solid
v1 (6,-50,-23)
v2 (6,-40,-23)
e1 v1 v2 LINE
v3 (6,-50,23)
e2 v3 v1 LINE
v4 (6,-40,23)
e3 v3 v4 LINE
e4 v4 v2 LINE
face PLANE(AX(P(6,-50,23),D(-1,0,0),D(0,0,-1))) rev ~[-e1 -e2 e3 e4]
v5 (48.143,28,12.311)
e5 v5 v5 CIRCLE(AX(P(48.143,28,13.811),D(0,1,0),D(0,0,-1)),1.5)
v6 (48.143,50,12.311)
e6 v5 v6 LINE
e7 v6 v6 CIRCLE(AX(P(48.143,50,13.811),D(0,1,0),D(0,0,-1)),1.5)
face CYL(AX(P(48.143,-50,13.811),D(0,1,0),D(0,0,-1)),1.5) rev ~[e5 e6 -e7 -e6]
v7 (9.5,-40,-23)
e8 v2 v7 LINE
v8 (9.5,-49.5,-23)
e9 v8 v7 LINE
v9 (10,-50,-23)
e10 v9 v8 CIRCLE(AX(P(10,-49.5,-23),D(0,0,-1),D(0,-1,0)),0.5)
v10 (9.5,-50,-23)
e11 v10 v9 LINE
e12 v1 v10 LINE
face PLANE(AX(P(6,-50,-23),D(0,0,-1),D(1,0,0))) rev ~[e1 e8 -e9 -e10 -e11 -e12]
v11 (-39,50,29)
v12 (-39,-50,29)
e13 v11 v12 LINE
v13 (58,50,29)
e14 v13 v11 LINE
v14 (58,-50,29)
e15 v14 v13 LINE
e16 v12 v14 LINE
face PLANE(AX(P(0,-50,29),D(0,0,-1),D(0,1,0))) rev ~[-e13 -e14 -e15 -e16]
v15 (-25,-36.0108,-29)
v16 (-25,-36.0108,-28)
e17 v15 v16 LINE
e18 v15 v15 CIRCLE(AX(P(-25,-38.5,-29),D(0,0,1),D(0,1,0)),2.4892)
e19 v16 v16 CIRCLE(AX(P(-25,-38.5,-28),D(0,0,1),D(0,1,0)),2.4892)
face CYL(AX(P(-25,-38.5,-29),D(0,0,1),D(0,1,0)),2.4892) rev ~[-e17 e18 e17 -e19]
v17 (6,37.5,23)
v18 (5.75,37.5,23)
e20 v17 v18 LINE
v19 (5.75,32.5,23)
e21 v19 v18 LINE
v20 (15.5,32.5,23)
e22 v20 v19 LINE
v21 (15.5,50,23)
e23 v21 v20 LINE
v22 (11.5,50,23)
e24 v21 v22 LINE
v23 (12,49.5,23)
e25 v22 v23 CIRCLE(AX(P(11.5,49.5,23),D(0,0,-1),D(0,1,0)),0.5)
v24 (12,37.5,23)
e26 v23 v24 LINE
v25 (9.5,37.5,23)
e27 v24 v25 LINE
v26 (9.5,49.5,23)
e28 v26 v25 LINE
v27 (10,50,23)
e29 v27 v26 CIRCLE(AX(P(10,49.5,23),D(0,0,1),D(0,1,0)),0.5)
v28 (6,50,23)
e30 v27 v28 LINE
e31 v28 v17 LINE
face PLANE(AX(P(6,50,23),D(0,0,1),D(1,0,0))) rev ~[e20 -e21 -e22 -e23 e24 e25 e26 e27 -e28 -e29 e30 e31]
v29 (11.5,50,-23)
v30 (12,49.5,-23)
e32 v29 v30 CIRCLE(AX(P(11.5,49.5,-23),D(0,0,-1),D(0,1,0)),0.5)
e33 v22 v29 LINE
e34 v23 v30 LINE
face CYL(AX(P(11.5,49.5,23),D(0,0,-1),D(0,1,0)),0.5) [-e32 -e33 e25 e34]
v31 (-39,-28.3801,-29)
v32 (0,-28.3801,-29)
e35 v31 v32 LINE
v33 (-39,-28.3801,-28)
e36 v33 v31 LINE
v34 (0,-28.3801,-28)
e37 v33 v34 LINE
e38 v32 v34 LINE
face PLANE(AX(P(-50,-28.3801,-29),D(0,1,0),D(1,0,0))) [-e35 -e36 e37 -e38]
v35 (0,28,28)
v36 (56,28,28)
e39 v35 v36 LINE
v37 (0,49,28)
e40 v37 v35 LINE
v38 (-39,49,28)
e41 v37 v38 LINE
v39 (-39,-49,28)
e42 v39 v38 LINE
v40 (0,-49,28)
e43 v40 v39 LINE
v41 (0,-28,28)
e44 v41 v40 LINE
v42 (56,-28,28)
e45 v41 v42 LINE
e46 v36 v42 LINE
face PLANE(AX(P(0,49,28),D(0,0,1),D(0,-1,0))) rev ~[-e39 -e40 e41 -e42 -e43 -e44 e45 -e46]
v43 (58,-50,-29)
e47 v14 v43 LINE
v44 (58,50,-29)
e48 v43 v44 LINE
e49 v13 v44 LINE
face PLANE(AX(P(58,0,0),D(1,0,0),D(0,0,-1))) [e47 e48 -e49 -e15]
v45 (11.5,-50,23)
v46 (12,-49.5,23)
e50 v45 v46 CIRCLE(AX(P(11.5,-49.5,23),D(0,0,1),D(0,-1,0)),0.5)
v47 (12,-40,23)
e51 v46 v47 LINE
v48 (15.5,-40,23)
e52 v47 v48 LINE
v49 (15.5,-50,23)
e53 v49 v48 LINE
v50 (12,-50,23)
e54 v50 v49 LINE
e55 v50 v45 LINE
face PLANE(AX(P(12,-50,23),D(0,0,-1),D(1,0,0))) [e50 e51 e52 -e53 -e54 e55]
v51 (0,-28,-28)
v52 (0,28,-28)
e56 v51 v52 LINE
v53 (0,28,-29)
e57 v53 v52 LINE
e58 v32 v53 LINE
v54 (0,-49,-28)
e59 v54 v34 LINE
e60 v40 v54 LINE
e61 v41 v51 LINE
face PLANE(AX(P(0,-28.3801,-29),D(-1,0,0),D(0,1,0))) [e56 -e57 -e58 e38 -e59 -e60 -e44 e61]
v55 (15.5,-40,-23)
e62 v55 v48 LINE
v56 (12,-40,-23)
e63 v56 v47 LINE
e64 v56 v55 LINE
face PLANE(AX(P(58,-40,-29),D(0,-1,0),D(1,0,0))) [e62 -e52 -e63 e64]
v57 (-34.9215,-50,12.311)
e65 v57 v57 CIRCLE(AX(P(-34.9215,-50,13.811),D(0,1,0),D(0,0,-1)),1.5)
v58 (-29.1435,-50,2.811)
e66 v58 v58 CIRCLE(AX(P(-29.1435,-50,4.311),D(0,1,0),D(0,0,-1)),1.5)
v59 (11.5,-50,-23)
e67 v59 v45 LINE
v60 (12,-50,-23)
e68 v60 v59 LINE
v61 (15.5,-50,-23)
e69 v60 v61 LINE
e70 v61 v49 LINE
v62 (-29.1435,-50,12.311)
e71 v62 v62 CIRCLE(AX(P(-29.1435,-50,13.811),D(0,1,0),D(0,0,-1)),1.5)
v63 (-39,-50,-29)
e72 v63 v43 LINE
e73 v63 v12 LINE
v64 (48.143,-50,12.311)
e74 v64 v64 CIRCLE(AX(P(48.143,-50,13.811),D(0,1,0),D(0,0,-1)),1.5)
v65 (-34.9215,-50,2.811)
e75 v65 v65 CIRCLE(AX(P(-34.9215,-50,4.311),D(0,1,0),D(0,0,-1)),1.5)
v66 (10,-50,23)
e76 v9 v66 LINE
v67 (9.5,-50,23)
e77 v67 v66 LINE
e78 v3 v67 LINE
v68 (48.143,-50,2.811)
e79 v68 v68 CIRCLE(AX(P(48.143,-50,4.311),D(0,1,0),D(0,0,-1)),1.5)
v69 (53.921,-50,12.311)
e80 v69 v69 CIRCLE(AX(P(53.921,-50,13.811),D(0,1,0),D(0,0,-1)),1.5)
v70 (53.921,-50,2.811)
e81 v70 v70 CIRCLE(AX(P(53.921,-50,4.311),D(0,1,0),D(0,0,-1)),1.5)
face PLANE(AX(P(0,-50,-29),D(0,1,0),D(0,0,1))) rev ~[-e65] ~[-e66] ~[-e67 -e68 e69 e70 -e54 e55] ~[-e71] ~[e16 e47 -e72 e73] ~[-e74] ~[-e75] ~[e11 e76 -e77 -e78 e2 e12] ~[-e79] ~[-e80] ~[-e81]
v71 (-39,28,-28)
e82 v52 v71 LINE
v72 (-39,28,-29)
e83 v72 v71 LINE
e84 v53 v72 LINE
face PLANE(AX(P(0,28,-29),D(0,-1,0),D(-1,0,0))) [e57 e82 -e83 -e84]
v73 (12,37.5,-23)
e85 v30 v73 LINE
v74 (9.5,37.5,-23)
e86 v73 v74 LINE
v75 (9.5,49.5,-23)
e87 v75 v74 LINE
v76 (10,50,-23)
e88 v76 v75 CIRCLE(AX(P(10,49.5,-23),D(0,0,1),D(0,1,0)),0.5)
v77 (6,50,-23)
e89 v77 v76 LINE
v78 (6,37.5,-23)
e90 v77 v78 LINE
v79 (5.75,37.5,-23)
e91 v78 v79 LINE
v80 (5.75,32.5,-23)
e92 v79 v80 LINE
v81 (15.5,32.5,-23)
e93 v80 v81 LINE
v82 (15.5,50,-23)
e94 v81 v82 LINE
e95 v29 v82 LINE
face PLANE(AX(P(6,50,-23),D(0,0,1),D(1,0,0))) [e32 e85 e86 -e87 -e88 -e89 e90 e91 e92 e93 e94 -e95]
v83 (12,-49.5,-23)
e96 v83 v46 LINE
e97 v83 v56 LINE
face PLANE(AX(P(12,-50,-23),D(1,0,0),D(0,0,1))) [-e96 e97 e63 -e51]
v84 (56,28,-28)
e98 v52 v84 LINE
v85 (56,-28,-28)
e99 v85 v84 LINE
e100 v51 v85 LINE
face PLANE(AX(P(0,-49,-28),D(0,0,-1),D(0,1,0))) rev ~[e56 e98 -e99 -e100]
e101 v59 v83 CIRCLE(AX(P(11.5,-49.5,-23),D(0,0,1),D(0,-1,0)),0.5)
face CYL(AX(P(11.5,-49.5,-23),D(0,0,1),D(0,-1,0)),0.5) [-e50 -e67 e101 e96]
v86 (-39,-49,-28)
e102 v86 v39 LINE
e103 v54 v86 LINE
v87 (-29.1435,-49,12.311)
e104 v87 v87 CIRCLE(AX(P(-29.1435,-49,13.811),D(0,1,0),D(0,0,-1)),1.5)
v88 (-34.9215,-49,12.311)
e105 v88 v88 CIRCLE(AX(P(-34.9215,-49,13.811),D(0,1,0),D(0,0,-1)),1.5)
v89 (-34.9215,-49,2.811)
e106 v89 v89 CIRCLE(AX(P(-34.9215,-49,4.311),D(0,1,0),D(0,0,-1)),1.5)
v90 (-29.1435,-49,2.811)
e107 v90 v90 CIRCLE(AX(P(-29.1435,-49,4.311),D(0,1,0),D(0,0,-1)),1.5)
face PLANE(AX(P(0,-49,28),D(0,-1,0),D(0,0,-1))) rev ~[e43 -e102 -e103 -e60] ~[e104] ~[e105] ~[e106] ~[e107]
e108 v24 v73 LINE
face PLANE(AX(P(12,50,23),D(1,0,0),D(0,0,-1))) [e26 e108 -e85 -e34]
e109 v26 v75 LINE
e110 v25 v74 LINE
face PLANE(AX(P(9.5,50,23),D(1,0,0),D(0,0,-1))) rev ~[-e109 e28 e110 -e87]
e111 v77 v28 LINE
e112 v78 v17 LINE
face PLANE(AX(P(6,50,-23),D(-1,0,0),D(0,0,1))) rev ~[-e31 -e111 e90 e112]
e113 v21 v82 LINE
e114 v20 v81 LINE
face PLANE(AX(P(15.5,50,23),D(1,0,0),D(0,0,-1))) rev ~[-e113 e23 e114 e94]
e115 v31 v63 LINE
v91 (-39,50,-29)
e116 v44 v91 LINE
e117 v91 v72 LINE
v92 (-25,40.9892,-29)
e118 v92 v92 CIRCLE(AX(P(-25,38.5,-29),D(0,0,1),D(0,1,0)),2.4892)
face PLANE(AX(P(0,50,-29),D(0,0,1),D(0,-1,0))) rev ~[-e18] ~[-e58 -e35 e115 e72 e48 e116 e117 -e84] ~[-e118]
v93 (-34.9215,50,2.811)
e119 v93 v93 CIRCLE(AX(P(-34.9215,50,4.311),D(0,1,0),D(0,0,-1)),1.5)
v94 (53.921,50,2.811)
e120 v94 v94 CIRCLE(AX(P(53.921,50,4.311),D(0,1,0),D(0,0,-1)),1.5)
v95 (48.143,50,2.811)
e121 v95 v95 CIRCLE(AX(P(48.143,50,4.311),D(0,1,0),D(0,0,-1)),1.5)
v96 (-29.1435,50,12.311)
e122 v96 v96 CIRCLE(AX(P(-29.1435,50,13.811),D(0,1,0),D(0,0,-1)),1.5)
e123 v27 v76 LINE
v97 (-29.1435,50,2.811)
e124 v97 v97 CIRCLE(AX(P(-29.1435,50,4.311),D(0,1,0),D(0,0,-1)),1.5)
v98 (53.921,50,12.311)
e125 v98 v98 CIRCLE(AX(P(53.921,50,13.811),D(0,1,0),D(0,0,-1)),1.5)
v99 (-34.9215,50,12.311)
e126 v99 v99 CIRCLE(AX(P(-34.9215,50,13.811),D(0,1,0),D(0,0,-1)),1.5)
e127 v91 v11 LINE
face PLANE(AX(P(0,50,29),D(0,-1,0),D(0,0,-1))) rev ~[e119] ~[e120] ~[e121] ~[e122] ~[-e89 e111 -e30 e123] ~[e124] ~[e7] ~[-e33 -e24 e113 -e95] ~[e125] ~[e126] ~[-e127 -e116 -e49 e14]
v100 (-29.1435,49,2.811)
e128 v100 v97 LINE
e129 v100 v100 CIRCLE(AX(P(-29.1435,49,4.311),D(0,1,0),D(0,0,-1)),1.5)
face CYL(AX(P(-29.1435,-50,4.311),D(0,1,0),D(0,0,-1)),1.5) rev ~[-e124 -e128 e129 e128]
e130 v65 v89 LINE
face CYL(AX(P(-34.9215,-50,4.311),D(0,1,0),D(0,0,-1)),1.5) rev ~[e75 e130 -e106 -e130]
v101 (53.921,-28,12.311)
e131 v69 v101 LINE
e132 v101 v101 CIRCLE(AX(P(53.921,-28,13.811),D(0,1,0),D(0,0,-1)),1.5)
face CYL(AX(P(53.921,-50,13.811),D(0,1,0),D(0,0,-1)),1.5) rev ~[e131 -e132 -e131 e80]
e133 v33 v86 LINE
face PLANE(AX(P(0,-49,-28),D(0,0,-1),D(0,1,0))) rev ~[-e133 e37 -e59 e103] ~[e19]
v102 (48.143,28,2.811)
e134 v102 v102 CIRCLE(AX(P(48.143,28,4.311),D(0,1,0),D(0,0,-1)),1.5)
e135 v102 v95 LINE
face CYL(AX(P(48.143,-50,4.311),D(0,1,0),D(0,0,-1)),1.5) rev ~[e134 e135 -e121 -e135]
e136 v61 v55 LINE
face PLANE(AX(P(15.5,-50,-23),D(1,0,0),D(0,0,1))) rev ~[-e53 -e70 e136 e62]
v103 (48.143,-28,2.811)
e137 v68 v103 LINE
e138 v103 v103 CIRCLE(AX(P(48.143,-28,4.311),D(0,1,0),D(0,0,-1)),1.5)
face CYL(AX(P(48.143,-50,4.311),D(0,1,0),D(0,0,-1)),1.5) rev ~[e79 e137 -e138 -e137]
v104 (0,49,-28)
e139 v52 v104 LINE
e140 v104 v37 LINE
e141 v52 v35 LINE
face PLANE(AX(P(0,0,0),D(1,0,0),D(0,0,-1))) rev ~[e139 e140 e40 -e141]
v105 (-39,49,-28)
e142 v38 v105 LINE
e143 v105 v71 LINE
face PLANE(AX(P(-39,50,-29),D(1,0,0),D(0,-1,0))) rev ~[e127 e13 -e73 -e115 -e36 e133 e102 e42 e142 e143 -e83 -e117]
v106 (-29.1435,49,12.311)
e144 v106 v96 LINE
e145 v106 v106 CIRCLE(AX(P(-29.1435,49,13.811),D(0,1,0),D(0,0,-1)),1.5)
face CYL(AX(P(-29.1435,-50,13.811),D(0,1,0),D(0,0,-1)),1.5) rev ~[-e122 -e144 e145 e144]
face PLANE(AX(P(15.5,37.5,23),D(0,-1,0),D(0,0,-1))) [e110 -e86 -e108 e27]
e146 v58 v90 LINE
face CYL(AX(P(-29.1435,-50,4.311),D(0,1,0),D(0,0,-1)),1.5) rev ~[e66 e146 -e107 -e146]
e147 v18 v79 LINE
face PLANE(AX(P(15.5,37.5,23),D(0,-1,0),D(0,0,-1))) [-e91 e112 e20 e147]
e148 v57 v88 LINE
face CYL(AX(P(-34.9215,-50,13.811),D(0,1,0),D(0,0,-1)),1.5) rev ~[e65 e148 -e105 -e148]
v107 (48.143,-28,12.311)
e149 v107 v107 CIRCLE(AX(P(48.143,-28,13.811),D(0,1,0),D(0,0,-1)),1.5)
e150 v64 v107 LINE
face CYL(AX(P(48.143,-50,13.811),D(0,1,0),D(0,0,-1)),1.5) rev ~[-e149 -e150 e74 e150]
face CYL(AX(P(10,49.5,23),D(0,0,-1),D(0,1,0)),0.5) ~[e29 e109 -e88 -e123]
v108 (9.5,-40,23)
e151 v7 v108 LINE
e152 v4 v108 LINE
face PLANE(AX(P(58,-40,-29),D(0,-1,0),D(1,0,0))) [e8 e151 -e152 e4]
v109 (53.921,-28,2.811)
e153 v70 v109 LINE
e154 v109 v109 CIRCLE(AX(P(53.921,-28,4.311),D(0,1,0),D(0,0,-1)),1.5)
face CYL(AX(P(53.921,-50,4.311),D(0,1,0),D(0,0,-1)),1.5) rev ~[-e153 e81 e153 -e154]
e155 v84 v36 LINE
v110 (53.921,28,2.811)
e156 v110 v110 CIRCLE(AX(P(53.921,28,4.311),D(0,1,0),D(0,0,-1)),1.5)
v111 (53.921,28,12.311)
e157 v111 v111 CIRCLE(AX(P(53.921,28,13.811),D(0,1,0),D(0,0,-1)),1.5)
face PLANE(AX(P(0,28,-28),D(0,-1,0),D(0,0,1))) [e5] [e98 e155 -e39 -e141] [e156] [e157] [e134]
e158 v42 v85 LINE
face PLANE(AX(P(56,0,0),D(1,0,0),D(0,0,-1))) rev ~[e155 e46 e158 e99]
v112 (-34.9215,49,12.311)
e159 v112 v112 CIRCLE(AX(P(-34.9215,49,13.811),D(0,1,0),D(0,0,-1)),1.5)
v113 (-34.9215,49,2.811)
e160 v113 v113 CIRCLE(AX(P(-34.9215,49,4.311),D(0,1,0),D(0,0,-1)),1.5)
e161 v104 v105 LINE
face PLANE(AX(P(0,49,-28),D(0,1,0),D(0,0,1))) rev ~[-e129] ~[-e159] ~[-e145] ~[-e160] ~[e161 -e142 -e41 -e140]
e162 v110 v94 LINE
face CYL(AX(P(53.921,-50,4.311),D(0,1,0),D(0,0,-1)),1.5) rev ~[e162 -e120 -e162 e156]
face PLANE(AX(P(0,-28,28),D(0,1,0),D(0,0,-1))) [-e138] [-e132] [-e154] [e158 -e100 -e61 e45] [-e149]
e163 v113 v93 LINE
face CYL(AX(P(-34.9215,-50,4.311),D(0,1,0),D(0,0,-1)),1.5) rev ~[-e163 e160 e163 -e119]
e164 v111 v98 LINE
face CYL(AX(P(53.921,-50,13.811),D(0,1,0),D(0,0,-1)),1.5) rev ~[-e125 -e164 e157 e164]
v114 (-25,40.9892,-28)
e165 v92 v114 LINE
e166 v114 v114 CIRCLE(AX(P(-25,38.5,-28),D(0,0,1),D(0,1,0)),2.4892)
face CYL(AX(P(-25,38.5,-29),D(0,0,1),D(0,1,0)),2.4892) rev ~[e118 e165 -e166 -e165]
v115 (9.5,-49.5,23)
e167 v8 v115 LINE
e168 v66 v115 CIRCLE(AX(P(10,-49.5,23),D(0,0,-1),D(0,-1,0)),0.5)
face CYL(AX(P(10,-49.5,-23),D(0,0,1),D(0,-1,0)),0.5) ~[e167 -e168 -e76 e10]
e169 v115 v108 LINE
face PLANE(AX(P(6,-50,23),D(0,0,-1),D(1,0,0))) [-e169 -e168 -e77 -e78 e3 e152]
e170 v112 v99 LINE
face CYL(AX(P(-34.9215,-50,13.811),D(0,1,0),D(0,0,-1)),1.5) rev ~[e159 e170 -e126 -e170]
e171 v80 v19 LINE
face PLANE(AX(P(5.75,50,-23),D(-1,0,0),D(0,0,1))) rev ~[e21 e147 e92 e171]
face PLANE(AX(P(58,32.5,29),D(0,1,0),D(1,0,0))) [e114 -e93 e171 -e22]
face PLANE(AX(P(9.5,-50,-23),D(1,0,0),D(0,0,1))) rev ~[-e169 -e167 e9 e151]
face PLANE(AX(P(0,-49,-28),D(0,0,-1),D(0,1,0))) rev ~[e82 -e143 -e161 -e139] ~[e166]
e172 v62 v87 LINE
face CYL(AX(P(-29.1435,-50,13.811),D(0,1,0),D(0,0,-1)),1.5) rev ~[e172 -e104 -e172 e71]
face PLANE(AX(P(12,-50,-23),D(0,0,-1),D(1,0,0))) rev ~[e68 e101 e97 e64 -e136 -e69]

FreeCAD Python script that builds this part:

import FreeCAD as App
import Part
import Sketcher

V = App.Vector


def edges_at(feature, points):
    """Names of the edges that pass closest to the given points."""
    edges = feature.Shape.Edges
    near = lambda p: min(range(len(edges)), key=lambda i: edges[i].distToShape(Part.Vertex(*p))[0])
    return sorted({f"Edge{near(p) + 1}" for p in points})

doc = App.newDocument("Part")
body = doc.addObject("PartDesign::Body", "Body")

sketch1 = doc.addObject("Sketcher::SketchObject", "Sketch")
body.addObject(sketch1)
sketch1.AttachmentSupport = (doc.YZ_Plane, [""])
sketch1.MapMode = "FlatFace"
sketch1.addGeometry([
    Part.LineSegment(V(29, -29, 0), V(29, 29, 0)),
    Part.LineSegment(V(29, 29, 0), V(-29, 29, 0)),
    Part.LineSegment(V(-29, 29, 0), V(-29, -29, 0)),
    Part.LineSegment(V(-29, -29, 0), V(29, -29, 0)),
    Part.LineSegment(V(-28, 28, 0), V(28, 28, 0)),
    Part.LineSegment(V(28, 28, 0), V(28, -28, 0)),
    Part.LineSegment(V(28, -28, 0), V(-28, -28, 0)),
    Part.LineSegment(V(-28, -28, 0), V(-28, 28, 0)),
], False)
sketch1.addConstraint([
    Sketcher.Constraint("Coincident", 0, 2, 1, 1),
    Sketcher.Constraint("Coincident", 1, 2, 2, 1),
    Sketcher.Constraint("Coincident", 2, 2, 3, 1),
    Sketcher.Constraint("Coincident", 3, 2, 0, 1),
    Sketcher.Constraint("Coincident", 4, 2, 5, 1),
    Sketcher.Constraint("Coincident", 5, 2, 6, 1),
    Sketcher.Constraint("Coincident", 6, 2, 7, 1),
    Sketcher.Constraint("Coincident", 7, 2, 4, 1),
    Sketcher.Constraint("Vertical", 0),
    Sketcher.Constraint("Horizontal", 1),
    Sketcher.Constraint("Vertical", 2),
    Sketcher.Constraint("Horizontal", 3),
    Sketcher.Constraint("Horizontal", 4),
    Sketcher.Constraint("Vertical", 5),
    Sketcher.Constraint("Horizontal", 6),
    Sketcher.Constraint("Vertical", 7),
    Sketcher.Constraint("Symmetric", 0, 2, 2, 2, -1, 1),
    Sketcher.Constraint("Symmetric", 4, 2, 6, 2, -1, 1),
    Sketcher.Constraint("Equal", 3, 0),
    Sketcher.Constraint("Equal", 6, 5),
    Sketcher.Constraint("DistanceX", 1, 2, 1, 1, 58.0),
    Sketcher.Constraint("DistanceX", 4, 1, 4, 2, 56.0),
])
pad1 = doc.addObject("PartDesign::Pad", "Pad")
body.addObject(pad1)
pad1.Profile = sketch1
pad1.Length = 56

sketch2 = doc.addObject("Sketcher::SketchObject", "Sketch001")
body.addObject(sketch2)
sketch2.AttachmentSupport = (doc.YZ_Plane, [""])
sketch2.MapMode = "FlatFace"
sketch2.AttachmentOffset = App.Placement(V(0, 0, 56), App.Rotation())
sketch2.addGeometry([
    Part.LineSegment(V(-29, -29, 0), V(29, -29, 0)),
    Part.LineSegment(V(29, -29, 0), V(29, 29, 0)),
    Part.LineSegment(V(29, 29, 0), V(-29, 29, 0)),
    Part.LineSegment(V(-29, 29, 0), V(-29, -29, 0)),
], False)
sketch2.addConstraint([
    Sketcher.Constraint("Coincident", 0, 2, 1, 1),
    Sketcher.Constraint("Coincident", 1, 2, 2, 1),
    Sketcher.Constraint("Coincident", 2, 2, 3, 1),
    Sketcher.Constraint("Coincident", 3, 2, 0, 1),
    Sketcher.Constraint("Horizontal", 0),
    Sketcher.Constraint("Vertical", 1),
    Sketcher.Constraint("Horizontal", 2),
    Sketcher.Constraint("Vertical", 3),
    Sketcher.Constraint("Symmetric", 0, 2, 2, 2, -1, 1),
    Sketcher.Constraint("Equal", 2, 1),
    Sketcher.Constraint("DistanceX", 0, 1, 0, 2, 58.0),
])
pad2 = doc.addObject("PartDesign::Pad", "Pad001")
body.addObject(pad2)
pad2.Profile = sketch2
pad2.Length = 2

sketch3 = doc.addObject("Sketcher::SketchObject", "Sketch002")
body.addObject(sketch3)
sketch3.AttachmentSupport = (doc.YZ_Plane, [""])
sketch3.MapMode = "FlatFace"
sketch3.addGeometry([
    Part.LineSegment(V(-50, 29, 0), V(50, 29, 0)),
    Part.LineSegment(V(50, 29, 0), V(50, -29, 0)),
    Part.LineSegment(V(50, -29, 0), V(-50, -29, 0)),
    Part.LineSegment(V(-50, -29, 0), V(-50, 29, 0)),
    Part.LineSegment(V(-49, -28, 0), V(49, -28, 0)),
    Part.LineSegment(V(49, -28, 0), V(49, 28, 0)),
    Part.LineSegment(V(49, 28, 0), V(-49, 28, 0)),
    Part.LineSegment(V(-49, 28, 0), V(-49, -28, 0)),
], False)
sketch3.addConstraint([
    Sketcher.Constraint("Coincident", 0, 2, 1, 1),
    Sketcher.Constraint("Coincident", 1, 2, 2, 1),
    Sketcher.Constraint("Coincident", 2, 2, 3, 1),
    Sketcher.Constraint("Coincident", 3, 2, 0, 1),
    Sketcher.Constraint("Coincident", 4, 2, 5, 1),
    Sketcher.Constraint("Coincident", 5, 2, 6, 1),
    Sketcher.Constraint("Coincident", 6, 2, 7, 1),
    Sketcher.Constraint("Coincident", 7, 2, 4, 1),
    Sketcher.Constraint("Horizontal", 0),
    Sketcher.Constraint("Vertical", 1),
    Sketcher.Constraint("Horizontal", 2),
    Sketcher.Constraint("Vertical", 3),
    Sketcher.Constraint("Horizontal", 4),
    Sketcher.Constraint("Vertical", 5),
    Sketcher.Constraint("Horizontal", 6),
    Sketcher.Constraint("Vertical", 7),
    Sketcher.Constraint("Symmetric", 0, 2, 2, 2, -1, 1),
    Sketcher.Constraint("Symmetric", 4, 2, 6, 2, -1, 1),
    Sketcher.Constraint("DistanceX", 0, 1, 0, 2, 100.0),
    Sketcher.Constraint("DistanceX", 4, 1, 4, 2, 98.0),
    Sketcher.Constraint("DistanceY", 1, 2, 1, 1, 58.0),
    Sketcher.Constraint("DistanceY", 5, 1, 5, 2, 56.0),
])
pad3 = doc.addObject("PartDesign::Pad", "Pad002")
body.addObject(pad3)
pad3.Profile = sketch3
pad3.Length = 50
pad3.Reversed = True

sketch4 = doc.addObject("Sketcher::SketchObject", "Sketch003")
body.addObject(sketch4)
sketch4.AttachmentSupport = (doc.YZ_Plane, [""])
sketch4.MapMode = "FlatFace"
sketch4.addGeometry([
    Part.LineSegment(V(-50, -29, 0), V(-29, -29, 0)),
    Part.LineSegment(V(-29, -29, 0), V(-29, 29, 0)),
    Part.LineSegment(V(-29, 29, 0), V(-50, 29, 0)),
    Part.LineSegment(V(-50, 29, 0), V(-50, -29, 0)),
    Part.LineSegment(V(50, 29, 0), V(29, 29, 0)),
    Part.LineSegment(V(29, 29, 0), V(29, -29, 0)),
    Part.LineSegment(V(29, -29, 0), V(50, -29, 0)),
    Part.LineSegment(V(50, -29, 0), V(50, 29, 0)),
], False)
sketch4.addConstraint([
    Sketcher.Constraint("Coincident", 0, 2, 1, 1),
    Sketcher.Constraint("Coincident", 1, 2, 2, 1),
    Sketcher.Constraint("Coincident", 2, 2, 3, 1),
    Sketcher.Constraint("Coincident", 3, 2, 0, 1),
    Sketcher.Constraint("Coincident", 4, 2, 5, 1),
    Sketcher.Constraint("Coincident", 5, 2, 6, 1),
    Sketcher.Constraint("Coincident", 6, 2, 7, 1),
    Sketcher.Constraint("Coincident", 7, 2, 4, 1),
    Sketcher.Constraint("Horizontal", 0),
    Sketcher.Constraint("Vertical", 1),
    Sketcher.Constraint("Horizontal", 2),
    Sketcher.Constraint("Vertical", 3),
    Sketcher.Constraint("Horizontal", 4),
    Sketcher.Constraint("Vertical", 5),
    Sketcher.Constraint("Horizontal", 6),
    Sketcher.Constraint("Vertical", 7),
    Sketcher.Constraint("Symmetric", 0, 2, 4, 2, -1, 1),
    Sketcher.Constraint("Symmetric", 2, 2, 6, 2, -1, 1),
    Sketcher.Constraint("Horizontal", 2, 2, 4, 2),
    Sketcher.Constraint("DistanceX", 0, 1, 0, 2, 21.0),
    Sketcher.Constraint("DistanceY", 1, 1, 1, 2, 58.0),
    Sketcher.Constraint("DistanceX", 0, 2, -1, 1, 29.0),
])
pad4 = doc.addObject("PartDesign::Pad", "Pad003")
body.addObject(pad4)
pad4.Profile = sketch4
pad4.Length = 1

sketch5 = doc.addObject("Sketcher::SketchObject", "Sketch004")
body.addObject(sketch5)
sketch5.AttachmentSupport = (doc.XY_Plane, [""])
sketch5.MapMode = "FlatFace"
sketch5.AttachmentOffset = App.Placement(V(0, 0, -29), App.Rotation())
sketch5.addGeometry([
    Part.LineSegment(V(-50, -28, 0), V(-50, 28, 0)),
    Part.LineSegment(V(-50, 28, 0), V(0, 28, 0)),
    Part.LineSegment(V(0, 28, 0), V(0, -28, 0)),
    Part.LineSegment(V(0, -28, 0), V(-50, -28, 0)),
], False)
sketch5.addConstraint([
    Sketcher.Constraint("Coincident", 0, 2, 1, 1),
    Sketcher.Constraint("Coincident", 1, 2, 2, 1),
    Sketcher.Constraint("Coincident", 2, 2, 3, 1),
    Sketcher.Constraint("Coincident", 3, 2, 0, 1),
    Sketcher.Constraint("Vertical", 0),
    Sketcher.Constraint("Horizontal", 1),
    Sketcher.Constraint("Vertical", 2),
    Sketcher.Constraint("Horizontal", 3),
    Sketcher.Constraint("PointOnObject", 1, 2, -2),
    Sketcher.Constraint("DistanceX", 1, 1, 1, 2, 50.0),
    Sketcher.Constraint("DistanceY", -1, 1, 0, 2, 28.0),
    Sketcher.Constraint("DistanceY", 0, 1, 0, 2, 56.38),
])
pocket1 = doc.addObject("PartDesign::Pocket", "Pocket")
body.addObject(pocket1)
pocket1.Profile = sketch5
pocket1.Length = 1
pocket1.Reversed = True

sketch6 = doc.addObject("Sketcher::SketchObject", "Sketch005")
body.addObject(sketch6)
sketch6.AttachmentSupport = (doc.XY_Plane, [""])
sketch6.MapMode = "FlatFace"
sketch6.AttachmentOffset = App.Placement(V(0, 0, -29), App.Rotation())
sketch6.addGeometry([
    Part.Circle(V(-25, 38.5, 0), V(0, 0, 1), 2.5),
    Part.Circle(V(-25, -38.5, 0), V(0, 0, 1), 2.5),
], False)
sketch6.addConstraint([
    Sketcher.Constraint("Equal", 0, 1),
    Sketcher.Constraint("Symmetric", 0, 3, 1, 3, -1),
    Sketcher.Constraint("DistanceX", 0, 3, -1, 1, 25.0),
    Sketcher.Constraint("DistanceY", 1, 3, 0, 3, 77.0),
    Sketcher.Constraint("Diameter", 0, 4.9784),
])
doc.recompute()
hole = doc.addObject("PartDesign::Hole", "Hole")
body.addObject(hole)
hole.Profile = sketch6
hole.ThreadType = "None"
hole.Diameter = 4.9784
hole.DepthType = "Dimension"
hole.Depth = 1
hole.DrillPoint = "Angled"
hole.DrillPointAngle = 118
hole.Reversed = True

sketch7 = doc.addObject("Sketcher::SketchObject", "Sketch006")
body.addObject(sketch7)
sketch7.AttachmentSupport = (doc.XY_Plane, [""])
sketch7.MapMode = "FlatFace"
sketch7.AttachmentOffset = App.Placement(V(0, 0, 29), App.Rotation())
sketch7.addGeometry([
    Part.LineSegment(V(58, 50, 0), V(1, 50, 0)),
    Part.LineSegment(V(1, 50, 0), V(1, 29, 0)),
    Part.LineSegment(V(1, 29, 0), V(58, 29, 0)),
    Part.LineSegment(V(58, 29, 0), V(58, 50, 0)),
    Part.LineSegment(V(58, -50, 0), V(58, -29, 0)),
    Part.LineSegment(V(58, -29, 0), V(1, -29, 0)),
    Part.LineSegment(V(1, -29, 0), V(1, -50, 0)),
    Part.LineSegment(V(1, -50, 0), V(58, -50, 0)),
], False)
sketch7.addConstraint([
    Sketcher.Constraint("Coincident", 0, 2, 1, 1),
    Sketcher.Constraint("Coincident", 1, 2, 2, 1),
    Sketcher.Constraint("Coincident", 2, 2, 3, 1),
    Sketcher.Constraint("Coincident", 3, 2, 0, 1),
    Sketcher.Constraint("Coincident", 4, 2, 5, 1),
    Sketcher.Constraint("Coincident", 5, 2, 6, 1),
    Sketcher.Constraint("Coincident", 6, 2, 7, 1),
    Sketcher.Constraint("Coincident", 7, 2, 4, 1),
    Sketcher.Constraint("Horizontal", 0),
    Sketcher.Constraint("Vertical", 1),
    Sketcher.Constraint("Horizontal", 2),
    Sketcher.Constraint("Vertical", 3),
    Sketcher.Constraint("Vertical", 4),
    Sketcher.Constraint("Horizontal", 5),
    Sketcher.Constraint("Vertical", 6),
    Sketcher.Constraint("Horizontal", 7),
    Sketcher.Constraint("Symmetric", 2, 2, 4, 2, -1),
    Sketcher.Constraint("Symmetric", 0, 2, 6, 2, -1),
    Sketcher.Constraint("DistanceX", 0, 2, 0, 1, 57.0),
    Sketcher.Constraint("DistanceY", 1, 2, 1, 1, 21.0),
    Sketcher.Constraint("DistanceX", -1, 1, 0, 2, 1.0),
    Sketcher.Constraint("DistanceY", -1, 1, 0, 2, 50.0),
])
pad5 = doc.addObject("PartDesign::Pad", "Pad004")
body.addObject(pad5)
pad5.Profile = sketch7
pad5.Length = 58
pad5.Reversed = True

sketch8 = doc.addObject("Sketcher::SketchObject", "Sketch007")
body.addObject(sketch8)
sketch8.AttachmentSupport = (doc.XY_Plane, [""])
sketch8.MapMode = "FlatFace"
sketch8.AttachmentOffset = App.Placement(V(0, 0, -29), App.Rotation())
sketch8.addGeometry([
    Part.LineSegment(V(-50, 50, 0), V(-39, 50, 0)),
    Part.LineSegment(V(-39, 50, 0), V(-39, -50, 0)),
    Part.LineSegment(V(-39, -50, 0), V(-50, -50, 0)),
    Part.LineSegment(V(-50, -50, 0), V(-50, 50, 0)),
], False)
sketch8.addConstraint([
    Sketcher.Constraint("Coincident", 0, 2, 1, 1),
    Sketcher.Constraint("Coincident", 1, 2, 2, 1),
    Sketcher.Constraint("Coincident", 2, 2, 3, 1),
    Sketcher.Constraint("Coincident", 3, 2, 0, 1),
    Sketcher.Constraint("Horizontal", 0),
    Sketcher.Constraint("Vertical", 1),
    Sketcher.Constraint("Horizontal", 2),
    Sketcher.Constraint("Vertical", 3),
    Sketcher.Constraint("DistanceX", 0, 1, 0, 2, 11.0),
    Sketcher.Constraint("DistanceY", 1, 2, 1, 1, 100.0),
    Sketcher.Constraint("DistanceX", 0, 2, -1, 1, 39.0),
    Sketcher.Constraint("DistanceY", -1, 1, 0, 2, 50.0),
])
pocket2 = doc.addObject("PartDesign::Pocket", "Pocket001")
body.addObject(pocket2)
pocket2.Profile = sketch8
pocket2.Length = 58
pocket2.Reversed = True

sketch9 = doc.addObject("Sketcher::SketchObject", "Sketch008")
body.addObject(sketch9)
sketch9.AttachmentSupport = (doc.XZ_Plane, [""])
sketch9.MapMode = "FlatFace"
sketch9.AttachmentOffset = App.Placement(V(0, 0, 50), App.Rotation())
sketch9.addGeometry([
    Part.Circle(V(-29.1, 4.3, 0), V(0, 0, 1), 1.5),
    Part.Circle(V(-29.1, 13.8, 0), V(0, 0, 1), 1.5),
    Part.Circle(V(-34.9, 4.3, 0), V(0, 0, 1), 1.5),
    Part.Circle(V(-34.9, 13.8, 0), V(0, 0, 1), 1.5),
    Part.Circle(V(48.1, 13.8, 0), V(0, 0, 1), 1.5),
    Part.Circle(V(53.9, 13.8, 0), V(0, 0, 1), 1.5),
    Part.Circle(V(53.9, 4.3, 0), V(0, 0, 1), 1.5),
    Part.Circle(V(48.1, 4.3, 0), V(0, 0, 1), 1.5),
], False)
sketch9.addConstraint([
    Sketcher.Constraint("Equal", 0, 1),
    Sketcher.Constraint("Equal", 1, 2),
    Sketcher.Constraint("Equal", 2, 3),
    Sketcher.Constraint("Equal", 3, 4),
    Sketcher.Constraint("Equal", 4, 5),
    Sketcher.Constraint("Equal", 5, 6),
    Sketcher.Constraint("Equal", 6, 7),
    Sketcher.Constraint("Horizontal", 0, 3, 2, 3),
    Sketcher.Constraint("Horizontal", 1, 3, 3, 3),
    Sketcher.Constraint("Horizontal", 3, 3, 4, 3),
    Sketcher.Constraint("Horizontal", 4, 3, 5, 3),
    Sketcher.Constraint("Horizontal", 2, 3, 6, 3),
    Sketcher.Constraint("Horizontal", 6, 3, 7, 3),
    Sketcher.Constraint("Vertical", 0, 3, 1, 3),
    Sketcher.Constraint("Vertical", 2, 3, 3, 3),
    Sketcher.Constraint("Vertical", 5, 3, 6, 3),
    Sketcher.Constraint("Vertical", 4, 3, 7, 3),
    Sketcher.Constraint("Diameter", 0, 3.0),
    Sketcher.Constraint("DistanceY", 0, 3, 1, 3, 9.5),
    Sketcher.Constraint("DistanceY", -1, 1, 0, 3, 4.311),
    Sketcher.Constraint("DistanceX", -1, 1, 4, 3, 48.143),
    Sketcher.Constraint("DistanceX", -1, 1, 5, 3, 53.921),
    Sketcher.Constraint("DistanceX", 2, 3, 0, 3, 5.778),
    Sketcher.Constraint("DistanceX", 0, 3, -1, 1, 29.1435),
])
doc.recompute()
hole2 = doc.addObject("PartDesign::Hole", "Hole001")
body.addObject(hole2)
hole2.Profile = sketch9
hole2.ThreadType = "None"
hole2.Diameter = 3
hole2.DepthType = "ThroughAll"

sketch10 = doc.addObject("Sketcher::SketchObject", "Sketch009")
body.addObject(sketch10)
sketch10.AttachmentSupport = (doc.XZ_Plane, [""])
sketch10.MapMode = "FlatFace"
sketch10.AttachmentOffset = App.Placement(V(0, 0, -50), App.Rotation())
sketch10.addGeometry([
    Part.LineSegment(V(12, 23, 0), V(15.5, 23, 0)),
    Part.LineSegment(V(15.5, 23, 0), V(15.5, -23, 0)),
    Part.LineSegment(V(15.5, -23, 0), V(12, -23, 0)),
    Part.LineSegment(V(12, -23, 0), V(12, 23, 0)),
    Part.LineSegment(V(6, 23, 0), V(9.5, 23, 0)),
    Part.LineSegment(V(9.5, 23, 0), V(9.5, -23, 0)),
    Part.LineSegment(V(9.5, -23, 0), V(6, -23, 0)),
    Part.LineSegment(V(6, -23, 0), V(6, 23, 0)),
], False)
sketch10.addConstraint([
    Sketcher.Constraint("Coincident", 0, 2, 1, 1),
    Sketcher.Constraint("Coincident", 1, 2, 2, 1),
    Sketcher.Constraint("Coincident", 2, 2, 3, 1),
    Sketcher.Constraint("Coincident", 3, 2, 0, 1),
    Sketcher.Constraint("Coincident", 4, 2, 5, 1),
    Sketcher.Constraint("Coincident", 5, 2, 6, 1),
    Sketcher.Constraint("Coincident", 6, 2, 7, 1),
    Sketcher.Constraint("Coincident", 7, 2, 4, 1),
    Sketcher.Constraint("Horizontal", 0),
    Sketcher.Constraint("Vertical", 1),
    Sketcher.Constraint("Horizontal", 2),
    Sketcher.Constraint("Vertical", 3),
    Sketcher.Constraint("Horizontal", 4),
    Sketcher.Constraint("Vertical", 5),
    Sketcher.Constraint("Horizontal", 6),
    Sketcher.Constraint("Vertical", 7),
    Sketcher.Constraint("Horizontal", 3, 2, 4, 2),
    Sketcher.Constraint("Horizontal", 2, 2, 5, 2),
    Sketcher.Constraint("Equal", 2, 4),
    Sketcher.Constraint("DistanceX", 0, 1, 0, 2, 3.5),
    Sketcher.Constraint("DistanceX", -1, 1, 6, 2, 6.0),
    Sketcher.Constraint("DistanceX", 4, 2, 0, 2, 6.0),
    Sketcher.Constraint("DistanceY", 1, 2, 1, 1, 46.0),
    Sketcher.Constraint("DistanceY", -1, 1, 0, 2, 23.0),
])
pocket3 = doc.addObject("PartDesign::Pocket", "Pocket002")
body.addObject(pocket3)
pocket3.Profile = sketch10
pocket3.Length = 17.5
pocket3.Reversed = True

sketch11 = doc.addObject("Sketcher::SketchObject", "Sketch010")
body.addObject(sketch11)
sketch11.AttachmentSupport = (doc.YZ_Plane, [""])
sketch11.MapMode = "FlatFace"
sketch11.AttachmentOffset = App.Placement(V(0, 0, 15.5), App.Rotation())
sketch11.addGeometry([
    Part.LineSegment(V(38, -23, 0), V(32, -23, 0)),
    Part.LineSegment(V(32, -23, 0), V(32, 23, 0)),
    Part.LineSegment(V(32, 23, 0), V(38, 23, 0)),
    Part.LineSegment(V(38, 23, 0), V(38, -23, 0)),
], False)
sketch11.addConstraint([
    Sketcher.Constraint("Coincident", 0, 2, 1, 1),
    Sketcher.Constraint("Coincident", 1, 2, 2, 1),
    Sketcher.Constraint("Coincident", 2, 2, 3, 1),
    Sketcher.Constraint("Coincident", 3, 2, 0, 1),
    Sketcher.Constraint("Horizontal", 0),
    Sketcher.Constraint("Vertical", 1),
    Sketcher.Constraint("Horizontal", 2),
    Sketcher.Constraint("Vertical", 3),
    Sketcher.Constraint("DistanceX", 0, 2, 0, 1, 5.0),
    Sketcher.Constraint("DistanceY", 1, 1, 1, 2, 46.0),
    Sketcher.Constraint("DistanceY", 0, 2, -1, 1, 23.0),
    Sketcher.Constraint("DistanceX", -1, 1, 0, 2, 32.5),
])
pocket4 = doc.addObject("PartDesign::Pocket", "Pocket003")
body.addObject(pocket4)
pocket4.Profile = sketch11
pocket4.Length = 9.75
doc.recompute()

fillet = doc.addObject("PartDesign::Fillet", "Fillet")
body.addObject(fillet)
fillet.Base = (pocket4, edges_at(pocket4, [(9.5, 50, 0), (12, 50, 0)]))
fillet.Radius = 0.5

sketch12 = doc.addObject("Sketcher::SketchObject", "Sketch011")
body.addObject(sketch12)
sketch12.AttachmentSupport = (doc.XZ_Plane, [""])
sketch12.MapMode = "FlatFace"
sketch12.AttachmentOffset = App.Placement(V(0, 0, 50), App.Rotation())
sketch12.addGeometry([
    Part.LineSegment(V(12, -23, 0), V(15.5, -23, 0)),
    Part.LineSegment(V(15.5, -23, 0), V(15.5, 23, 0)),
    Part.LineSegment(V(15.5, 23, 0), V(12, 23, 0)),
    Part.LineSegment(V(12, 23, 0), V(12, -23, 0)),
    Part.LineSegment(V(6, -23, 0), V(9.5, -23, 0)),
    Part.LineSegment(V(9.5, -23, 0), V(9.5, 23, 0)),
    Part.LineSegment(V(9.5, 23, 0), V(6, 23, 0)),
    Part.LineSegment(V(6, 23, 0), V(6, -23, 0)),
], False)
sketch12.addConstraint([
    Sketcher.Constraint("Coincident", 0, 2, 1, 1),
    Sketcher.Constraint("Coincident", 1, 2, 2, 1),
    Sketcher.Constraint("Coincident", 2, 2, 3, 1),
    Sketcher.Constraint("Coincident", 3, 2, 0, 1),
    Sketcher.Constraint("Coincident", 4, 2, 5, 1),
    Sketcher.Constraint("Coincident", 5, 2, 6, 1),
    Sketcher.Constraint("Coincident", 6, 2, 7, 1),
    Sketcher.Constraint("Coincident", 7, 2, 4, 1),
    Sketcher.Constraint("Horizontal", 0),
    Sketcher.Constraint("Vertical", 1),
    Sketcher.Constraint("Horizontal", 2),
    Sketcher.Constraint("Vertical", 3),
    Sketcher.Constraint("Horizontal", 4),
    Sketcher.Constraint("Vertical", 5),
    Sketcher.Constraint("Horizontal", 6),
    Sketcher.Constraint("Vertical", 7),
    Sketcher.Constraint("Horizontal", 3, 2, 4, 2),
    Sketcher.Constraint("Horizontal", 2, 2, 5, 2),
    Sketcher.Constraint("Equal", 2, 4),
    Sketcher.Constraint("DistanceX", 0, 1, 0, 2, 3.5),
    Sketcher.Constraint("DistanceX", -1, 1, 6, 2, 6.0),
    Sketcher.Constraint("DistanceX", 4, 2, 0, 2, 6.0),
    Sketcher.Constraint("DistanceY", 1, 1, 1, 2, 46.0),
    Sketcher.Constraint("DistanceY", 0, 2, -1, 1, 23.0),
])
pocket5 = doc.addObject("PartDesign::Pocket", "Pocket004")
body.addObject(pocket5)
pocket5.Profile = sketch12
pocket5.Length = 10
doc.recompute()

fillet2 = doc.addObject("PartDesign::Fillet", "Fillet001")
body.addObject(fillet2)
fillet2.Base = (pocket5, edges_at(pocket5, [(12, -50, 0), (9.5, -50, 0)]))
fillet2.Radius = 0.5

doc.recompute()
